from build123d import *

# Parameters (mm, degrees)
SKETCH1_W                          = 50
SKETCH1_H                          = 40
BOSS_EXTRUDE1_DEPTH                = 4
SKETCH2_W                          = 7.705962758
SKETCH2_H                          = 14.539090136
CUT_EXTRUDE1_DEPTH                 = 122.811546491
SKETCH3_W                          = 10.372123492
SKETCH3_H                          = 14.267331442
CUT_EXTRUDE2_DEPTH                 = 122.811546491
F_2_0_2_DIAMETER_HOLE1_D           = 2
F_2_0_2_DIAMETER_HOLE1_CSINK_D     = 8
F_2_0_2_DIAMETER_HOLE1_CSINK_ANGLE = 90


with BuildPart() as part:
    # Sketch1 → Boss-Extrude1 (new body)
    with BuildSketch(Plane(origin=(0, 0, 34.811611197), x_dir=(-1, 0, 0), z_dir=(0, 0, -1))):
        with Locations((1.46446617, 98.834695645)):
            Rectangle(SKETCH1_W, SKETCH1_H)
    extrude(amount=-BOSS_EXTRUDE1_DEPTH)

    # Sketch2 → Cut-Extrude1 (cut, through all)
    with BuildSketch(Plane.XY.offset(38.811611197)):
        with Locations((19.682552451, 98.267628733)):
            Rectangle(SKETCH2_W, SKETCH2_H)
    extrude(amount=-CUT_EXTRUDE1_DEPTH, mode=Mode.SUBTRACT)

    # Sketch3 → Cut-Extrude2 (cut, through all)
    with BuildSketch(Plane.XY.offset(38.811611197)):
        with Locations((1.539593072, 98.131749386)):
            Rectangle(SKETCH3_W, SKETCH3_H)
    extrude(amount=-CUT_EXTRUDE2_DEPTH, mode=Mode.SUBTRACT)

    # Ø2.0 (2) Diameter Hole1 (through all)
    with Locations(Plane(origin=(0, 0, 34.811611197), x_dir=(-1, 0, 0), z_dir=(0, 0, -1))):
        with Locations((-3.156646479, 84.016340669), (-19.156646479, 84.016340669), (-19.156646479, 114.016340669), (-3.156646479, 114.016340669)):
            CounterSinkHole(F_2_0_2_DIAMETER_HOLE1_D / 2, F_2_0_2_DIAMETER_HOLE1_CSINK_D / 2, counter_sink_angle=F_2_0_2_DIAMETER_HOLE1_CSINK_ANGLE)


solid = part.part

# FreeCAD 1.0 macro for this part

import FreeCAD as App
import Part
import Sketcher

V = App.Vector


def add_polygon(sketch, points):
    """Adds a closed chain of lines whose ends are joined by coincident constraints."""
    first, n = sketch.GeometryCount, len(points)
    for a, b in zip(points, points[1:] + points[:1]):
        sketch.addGeometry(Part.LineSegment(App.Vector(*a, 0), App.Vector(*b, 0)), False)
    for i in range(n):
        sketch.addConstraint(Sketcher.Constraint("Coincident", first + i, 2, first + (i + 1) % n, 1))

doc = App.newDocument("Part")
params = doc.addObject("Spreadsheet::Sheet", "Params")
for row, (alias, value) in enumerate([
    ("sketch1_width", "50 mm"),
    ("sketch1_height", "40 mm"),
    ("pad1_length", "4 mm"),
    ("sketch4_diameter", "2 mm"),
    ("hole_diameter", "2 mm"),
    ("hole_csink_diameter", "8 mm"),
], start=1):
    params.set(f"A{row}", alias)
    params.set(f"B{row}", "=" + value)
    params.setAlias(f"B{row}", alias)

body = doc.addObject("PartDesign::Body", "Body")

# Sketch on XY plane
sketch1 = body.newObject("Sketcher::SketchObject", "Sketch")
sketch1.AttachmentSupport = (doc.getObject("XY_Plane"), [""])
sketch1.MapMode = "FlatFace"
sketch1.AttachmentOffset = App.Placement(V(0, 0, 34.811611), App.Rotation())
add_polygon(sketch1, [(23.535534, 118.834696), (23.535534, 78.834696), (-26.464466, 78.834696), (-26.464466, 118.834696)])  # lines 0-3
sketch1.addConstraint(Sketcher.Constraint("Vertical", 0))
sketch1.addConstraint(Sketcher.Constraint("Horizontal", 1))
sketch1.addConstraint(Sketcher.Constraint("Vertical", 2))
sketch1.addConstraint(Sketcher.Constraint("Horizontal", 3))
sketch1.addConstraint(Sketcher.Constraint("DistanceX", 1, 2, 1, 1, 50.0))
sketch1.addConstraint(Sketcher.Constraint("DistanceY", 0, 2, 0, 1, 40.0))
sketch1.addConstraint(Sketcher.Constraint("DistanceX", -1, 1, 0, 2, 23.535534))
sketch1.addConstraint(Sketcher.Constraint("DistanceY", -1, 1, 0, 2, 78.834696))
sketch1.setExpression("Constraints[8]", "Params.sketch1_width")
sketch1.setExpression("Constraints[9]", "Params.sketch1_height")
pad1 = body.newObject("PartDesign::Pad", "Pad")
pad1.Profile = sketch1
pad1.setExpression("Length", "Params.pad1_length")

# Sketch on XY plane
sketch2 = body.newObject("Sketcher::SketchObject", "Sketch001")
sketch2.AttachmentSupport = (doc.getObject("XY_Plane"), [""])
sketch2.MapMode = "FlatFace"
sketch2.AttachmentOffset = App.Placement(V(0, 0, 38.811611), App.Rotation())
add_polygon(sketch2, [(15.829571, 105.537174), (15.829571, 90.998084), (23.535534, 90.998084), (23.535534, 105.537174)])  # lines 0-3
sketch2.addConstraint(Sketcher.Constraint("Vertical", 0))
sketch2.addConstraint(Sketcher.Constraint("Horizontal", 1))
sketch2.addConstraint(Sketcher.Constraint("Vertical", 2))
sketch2.addConstraint(Sketcher.Constraint("Horizontal", 3))
sketch2.addConstraint(Sketcher.Constraint("DistanceY", 0, 2, 0, 1, 14.53909))
sketch2.addConstraint(Sketcher.Constraint("DistanceX", 1, 1, 1, 2, 7.705963))
sketch2.addConstraint(Sketcher.Constraint("DistanceX", -1, 1, 0, 2, 15.829571))
sketch2.addConstraint(Sketcher.Constraint("DistanceY", -1, 1, 0, 2, 90.998084))
pocket1 = body.newObject("PartDesign::Pocket", "Pocket")
pocket1.Profile = sketch2
pocket1.Type = "ThroughAll"

# Sketch on XY plane
sketch3 = body.newObject("Sketcher::SketchObject", "Sketch002")
sketch3.AttachmentSupport = (doc.getObject("XY_Plane"), [""])
sketch3.MapMode = "FlatFace"
sketch3.AttachmentOffset = App.Placement(V(0, 0, 38.811611), App.Rotation())
add_polygon(sketch3, [(-3.646469, 105.265415), (-3.646469, 90.998084), (6.725655, 90.998084), (6.725655, 105.265415)])  # lines 0-3
sketch3.addConstraint(Sketcher.Constraint("Vertical", 0))
sketch3.addConstraint(Sketcher.Constraint("Horizontal", 1))
sketch3.addConstraint(Sketcher.Constraint("Vertical", 2))
sketch3.addConstraint(Sketcher.Constraint("Horizontal", 3))
sketch3.addConstraint(Sketcher.Constraint("DistanceY", 0, 2, 0, 1, 14.267331))
sketch3.addConstraint(Sketcher.Constraint("DistanceX", 1, 1, 1, 2, 10.372123))
sketch3.addConstraint(Sketcher.Constraint("DistanceX", 0, 2, -1, 1, 3.646469))
sketch3.addConstraint(Sketcher.Constraint("DistanceY", -1, 1, 0, 2, 90.998084))
pocket2 = body.newObject("PartDesign::Pocket", "Pocket001")
pocket2.Profile = sketch3
pocket2.Type = "ThroughAll"

# Sketch on XY plane
sketch4 = body.newObject("Sketcher::SketchObject", "Sketch003")
sketch4.AttachmentSupport = (doc.getObject("XY_Plane"), [""])
sketch4.MapMode = "FlatFace"
sketch4.AttachmentOffset = App.Placement(V(0, 0, 34.811611), App.Rotation())
sketch4.addGeometry(Part.Circle(V(3.156646, 84.016341, 0), V(0, 0, 1), 1), False)
sketch4.addGeometry(Part.Circle(V(19.156646, 84.016341, 0), V(0, 0, 1), 1), False)
sketch4.addGeometry(Part.Circle(V(19.156646, 114.016341, 0), V(0, 0, 1), 1), False)
sketch4.addGeometry(Part.Circle(V(3.156646, 114.016341, 0), V(0, 0, 1), 1), False)
sketch4.addConstraint(Sketcher.Constraint("Equal", 0, 1))
sketch4.addConstraint(Sketcher.Constraint("Equal", 1, 2))
sketch4.addConstraint(Sketcher.Constraint("Equal", 2, 3))
sketch4.addConstraint(Sketcher.Constraint("Horizontal", 0, 3, 1, 3))
sketch4.addConstraint(Sketcher.Constraint("Horizontal", 2, 3, 3, 3))
sketch4.addConstraint(Sketcher.Constraint("Vertical", 1, 3, 2, 3))
sketch4.addConstraint(Sketcher.Constraint("Vertical", 0, 3, 3, 3))
sketch4.addConstraint(Sketcher.Constraint("Diameter", 0, 2.0))
sketch4.addConstraint(Sketcher.Constraint("DistanceX", 0, 3, 1, 3, 16.0))
sketch4.addConstraint(Sketcher.Constraint("DistanceY", 1, 3, 2, 3, 30.0))
sketch4.addConstraint(Sketcher.Constraint("DistanceY", -1, 1, 0, 3, 84.016341))
sketch4.addConstraint(Sketcher.Constraint("DistanceX", -1, 1, 0, 3, 3.156646))
sketch4.setExpression("Constraints[7]", "Params.sketch4_diameter")
doc.recompute()
hole = body.newObject("PartDesign::Hole", "Hole")
hole.Profile = sketch4
hole.ThreadType = "None"
hole.setExpression("Diameter", "Params.hole_diameter")
hole.DepthType = "ThroughAll"
hole.HoleCutType = "Countersink"
hole.setExpression("HoleCutDiameter", "Params.hole_csink_diameter")
hole.HoleCutCountersinkAngle = 90
hole.Reversed = True

doc.recompute()
